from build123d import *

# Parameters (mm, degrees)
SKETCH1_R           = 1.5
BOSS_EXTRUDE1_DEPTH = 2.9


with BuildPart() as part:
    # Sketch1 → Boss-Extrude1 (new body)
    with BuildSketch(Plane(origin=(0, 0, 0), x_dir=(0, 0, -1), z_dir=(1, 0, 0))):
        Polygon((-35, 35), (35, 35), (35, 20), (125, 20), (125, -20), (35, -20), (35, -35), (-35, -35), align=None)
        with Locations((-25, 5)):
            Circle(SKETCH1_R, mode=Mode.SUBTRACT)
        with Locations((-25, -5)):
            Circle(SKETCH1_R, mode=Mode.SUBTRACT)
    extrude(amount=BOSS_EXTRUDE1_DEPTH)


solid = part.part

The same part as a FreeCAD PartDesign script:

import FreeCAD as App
import Part
import Sketcher
Q = App.Units.Quantity

doc = App.newDocument("Part")
body = doc.addObject("PartDesign::Body", "Body")

# Sketch on YZ plane
sketch1 = body.newObject("Sketcher::SketchObject", "Sketch")
sketch1.AttachmentSupport = (doc.getObject("YZ_Plane"), [""])
sketch1.MapMode = "FlatFace"
sketch1.addGeometry(Part.LineSegment(App.Vector(35, -35, 0), App.Vector(35, 35, 0)), False)
sketch1.addGeometry(Part.LineSegment(App.Vector(35, 35, 0), App.Vector(-35, 35, 0)), False)
sketch1.addGeometry(Part.LineSegment(App.Vector(-35, 35, 0), App.Vector(-35, -35, 0)), False)
sketch1.addGeometry(Part.LineSegment(App.Vector(-35, -35, 0), App.Vector(-20, -35, 0)), False)
sketch1.addGeometry(Part.LineSegment(App.Vector(-20, -35, 0), App.Vector(-20, -125, 0)), False)
sketch1.addGeometry(Part.LineSegment(App.Vector(-20, -125, 0), App.Vector(20, -125, 0)), False)
sketch1.addGeometry(Part.LineSegment(App.Vector(20, -125, 0), App.Vector(20, -35, 0)), False)
sketch1.addGeometry(Part.LineSegment(App.Vector(20, -35, 0), App.Vector(35, -35, 0)), False)
sketch1.addGeometry(Part.Circle(App.Vector(-5, 25, 0), App.Vector(0, 0, 1), 1.5), False)
sketch1.addGeometry(Part.Circle(App.Vector(5, 25, 0), App.Vector(0, 0, 1), 1.5), False)
sketch1.addConstraint(Sketcher.Constraint("Coincident", 0, 2, 1, 1))
sketch1.addConstraint(Sketcher.Constraint("Coincident", 1, 2, 2, 1))
sketch1.addConstraint(Sketcher.Constraint("Coincident", 2, 2, 3, 1))
sketch1.addConstraint(Sketcher.Constraint("Coincident", 3, 2, 4, 1))
sketch1.addConstraint(Sketcher.Constraint("Coincident", 4, 2, 5, 1))
sketch1.addConstraint(Sketcher.Constraint("Coincident", 5, 2, 6, 1))
sketch1.addConstraint(Sketcher.Constraint("Coincident", 6, 2, 7, 1))
sketch1.addConstraint(Sketcher.Constraint("Coincident", 7, 2, 0, 1))
sketch1.addConstraint(Sketcher.Constraint("Vertical", 0))
sketch1.addConstraint(Sketcher.Constraint("Horizontal", 1))
sketch1.addConstraint(Sketcher.Constraint("Vertical", 2))
sketch1.addConstraint(Sketcher.Constraint("Horizontal", 3))
sketch1.addConstraint(Sketcher.Constraint("Vertical", 4))
sketch1.addConstraint(Sketcher.Constraint("Horizontal", 5))
sketch1.addConstraint(Sketcher.Constraint("Vertical", 6))
sketch1.addConstraint(Sketcher.Constraint("Horizontal", 7))
sketch1.addConstraint(Sketcher.Constraint("Equal", 8, 9))
sketch1.addConstraint(Sketcher.Constraint("Symmetric", 0, 2, 2, 2, -1, 1))
sketch1.addConstraint(Sketcher.Constraint("Symmetric", 8, 3, 9, 3, -2))
sketch1.addConstraint(Sketcher.Constraint("Symmetric", 3, 2, 6, 2, -2))
sketch1.addConstraint(Sketcher.Constraint("Equal", 1, 0))
sketch1.addConstraint(Sketcher.Constraint("Diameter", 8, Q("3 mm")))
sketch1.addConstraint(Sketcher.Constraint("DistanceX", 1, 2, 1, 1, Q("70 mm")))
sketch1.addConstraint(Sketcher.Constraint("DistanceX", 3, 1, 3, 2, Q("15 mm")))
sketch1.addConstraint(Sketcher.Constraint("DistanceY", 4, 2, 4, 1, Q("90 mm")))
sketch1.addConstraint(Sketcher.Constraint("DistanceX", 8, 3, -1, 1, Q("5 mm")))
sketch1.addConstraint(Sketcher.Constraint("DistanceY", -1, 1, 8, 3, Q("25 mm")))
pad1 = body.newObject("PartDesign::Pad", "Pad")
pad1.Profile = sketch1
pad1.Length = 2.9

doc.recompute()
